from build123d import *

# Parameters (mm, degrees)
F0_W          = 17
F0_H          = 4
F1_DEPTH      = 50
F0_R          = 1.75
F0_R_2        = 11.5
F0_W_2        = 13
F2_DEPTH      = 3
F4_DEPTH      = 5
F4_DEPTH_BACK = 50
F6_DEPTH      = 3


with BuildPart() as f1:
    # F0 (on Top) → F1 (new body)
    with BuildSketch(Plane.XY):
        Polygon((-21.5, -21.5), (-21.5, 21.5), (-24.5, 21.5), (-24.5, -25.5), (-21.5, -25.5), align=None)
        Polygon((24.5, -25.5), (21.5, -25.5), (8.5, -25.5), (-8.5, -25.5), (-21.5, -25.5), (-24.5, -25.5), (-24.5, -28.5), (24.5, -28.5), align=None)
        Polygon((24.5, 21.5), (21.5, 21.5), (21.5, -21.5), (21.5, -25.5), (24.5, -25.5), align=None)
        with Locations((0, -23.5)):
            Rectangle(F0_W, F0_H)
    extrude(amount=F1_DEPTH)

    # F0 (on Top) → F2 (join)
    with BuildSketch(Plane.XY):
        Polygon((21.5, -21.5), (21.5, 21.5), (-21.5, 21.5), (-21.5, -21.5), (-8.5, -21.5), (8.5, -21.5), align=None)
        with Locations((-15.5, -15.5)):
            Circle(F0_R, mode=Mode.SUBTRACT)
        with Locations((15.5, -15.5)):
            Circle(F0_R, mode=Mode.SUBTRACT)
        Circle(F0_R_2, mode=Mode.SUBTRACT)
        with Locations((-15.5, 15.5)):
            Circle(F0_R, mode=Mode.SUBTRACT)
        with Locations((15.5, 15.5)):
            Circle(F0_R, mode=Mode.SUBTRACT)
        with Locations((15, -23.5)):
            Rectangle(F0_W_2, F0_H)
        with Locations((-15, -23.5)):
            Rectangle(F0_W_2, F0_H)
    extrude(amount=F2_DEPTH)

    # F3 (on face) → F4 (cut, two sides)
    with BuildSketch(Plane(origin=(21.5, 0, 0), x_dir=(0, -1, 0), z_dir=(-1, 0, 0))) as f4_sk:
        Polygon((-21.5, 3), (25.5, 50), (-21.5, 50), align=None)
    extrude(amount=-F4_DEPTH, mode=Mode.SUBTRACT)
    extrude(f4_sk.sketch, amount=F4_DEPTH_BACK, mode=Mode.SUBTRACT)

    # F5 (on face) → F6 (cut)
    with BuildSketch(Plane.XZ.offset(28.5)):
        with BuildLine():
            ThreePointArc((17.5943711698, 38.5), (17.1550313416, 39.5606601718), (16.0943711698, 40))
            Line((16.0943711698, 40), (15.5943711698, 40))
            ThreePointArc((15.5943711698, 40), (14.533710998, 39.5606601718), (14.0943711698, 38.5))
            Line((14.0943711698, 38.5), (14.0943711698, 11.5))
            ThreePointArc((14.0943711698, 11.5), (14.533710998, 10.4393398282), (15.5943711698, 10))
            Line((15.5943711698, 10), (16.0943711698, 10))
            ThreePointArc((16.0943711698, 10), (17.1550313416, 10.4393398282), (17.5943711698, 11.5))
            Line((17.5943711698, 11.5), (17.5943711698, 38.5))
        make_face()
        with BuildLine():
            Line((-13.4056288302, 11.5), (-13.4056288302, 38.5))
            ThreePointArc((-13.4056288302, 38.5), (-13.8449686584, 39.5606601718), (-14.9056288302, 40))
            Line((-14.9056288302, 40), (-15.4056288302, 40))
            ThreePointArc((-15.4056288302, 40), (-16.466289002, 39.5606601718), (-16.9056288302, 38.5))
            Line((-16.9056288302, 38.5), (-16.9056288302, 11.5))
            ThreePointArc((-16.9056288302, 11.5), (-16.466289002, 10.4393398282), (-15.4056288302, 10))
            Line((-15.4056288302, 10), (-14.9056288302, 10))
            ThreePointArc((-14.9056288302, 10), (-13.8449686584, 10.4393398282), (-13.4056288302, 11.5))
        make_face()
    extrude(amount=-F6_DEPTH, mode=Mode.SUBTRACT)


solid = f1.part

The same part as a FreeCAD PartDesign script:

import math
import FreeCAD as App
import Part
import Sketcher

doc = App.newDocument("Part")
body = doc.addObject("PartDesign::Body", "Body")

sketch1 = body.newObject("Sketcher::SketchObject", "Sketch")
sketch1.AttachmentSupport = (doc.getObject("XY_Plane"), [""])
sketch1.MapMode = "FlatFace"
sketch1.addGeometry(Part.LineSegment(App.Vector(-21.5, 21.5, 0), App.Vector(-24.5, 21.5, 0)), False)
sketch1.addGeometry(Part.LineSegment(App.Vector(-24.5, 21.5, 0), App.Vector(-24.5, -28.5, 0)), False)
sketch1.addGeometry(Part.LineSegment(App.Vector(-24.5, -28.5, 0), App.Vector(24.5, -28.5, 0)), False)
sketch1.addGeometry(Part.LineSegment(App.Vector(24.5, -28.5, 0), App.Vector(24.5, 21.5, 0)), False)
sketch1.addGeometry(Part.LineSegment(App.Vector(24.5, 21.5, 0), App.Vector(21.5, 21.5, 0)), False)
sketch1.addGeometry(Part.LineSegment(App.Vector(21.5, 21.5, 0), App.Vector(21.5, -25.5, 0)), False)
sketch1.addGeometry(Part.LineSegment(App.Vector(21.5, -25.5, 0), App.Vector(8.5, -25.5, 0)), False)
sketch1.addGeometry(Part.LineSegment(App.Vector(8.5, -25.5, 0), App.Vector(8.5, -21.5, 0)), False)
sketch1.addGeometry(Part.LineSegment(App.Vector(8.5, -21.5, 0), App.Vector(-8.5, -21.5, 0)), False)
sketch1.addGeometry(Part.LineSegment(App.Vector(-8.5, -21.5, 0), App.Vector(-8.5, -25.5, 0)), False)
sketch1.addGeometry(Part.LineSegment(App.Vector(-8.5, -25.5, 0), App.Vector(-21.5, -25.5, 0)), False)
sketch1.addGeometry(Part.LineSegment(App.Vector(-21.5, -25.5, 0), App.Vector(-21.5, 21.5, 0)), False)
sketch1.addConstraint(Sketcher.Constraint("Coincident", 0, 2, 1, 1))
sketch1.addConstraint(Sketcher.Constraint("Coincident", 1, 2, 2, 1))
sketch1.addConstraint(Sketcher.Constraint("Coincident", 2, 2, 3, 1))
sketch1.addConstraint(Sketcher.Constraint("Coincident", 3, 2, 4, 1))
sketch1.addConstraint(Sketcher.Constraint("Coincident", 4, 2, 5, 1))
sketch1.addConstraint(Sketcher.Constraint("Coincident", 5, 2, 6, 1))
sketch1.addConstraint(Sketcher.Constraint("Coincident", 6, 2, 7, 1))
sketch1.addConstraint(Sketcher.Constraint("Coincident", 7, 2, 8, 1))
sketch1.addConstraint(Sketcher.Constraint("Coincident", 8, 2, 9, 1))
sketch1.addConstraint(Sketcher.Constraint("Coincident", 9, 2, 10, 1))
sketch1.addConstraint(Sketcher.Constraint("Coincident", 10, 2, 11, 1))
sketch1.addConstraint(Sketcher.Constraint("Coincident", 11, 2, 0, 1))
sketch1.addConstraint(Sketcher.Constraint("Horizontal", 0))
sketch1.addConstraint(Sketcher.Constraint("Vertical", 1))
sketch1.addConstraint(Sketcher.Constraint("Horizontal", 2))
sketch1.addConstraint(Sketcher.Constraint("Vertical", 3))
sketch1.addConstraint(Sketcher.Constraint("Horizontal", 4))
sketch1.addConstraint(Sketcher.Constraint("Vertical", 5))
sketch1.addConstraint(Sketcher.Constraint("Horizontal", 6))
sketch1.addConstraint(Sketcher.Constraint("Vertical", 7))
sketch1.addConstraint(Sketcher.Constraint("Horizontal", 8))
sketch1.addConstraint(Sketcher.Constraint("Vertical", 9))
sketch1.addConstraint(Sketcher.Constraint("Horizontal", 10))
sketch1.addConstraint(Sketcher.Constraint("Vertical", 11))
sketch1.addConstraint(Sketcher.Constraint("Symmetric", 0, 2, 3, 2, -2))
sketch1.addConstraint(Sketcher.Constraint("Symmetric", 6, 2, 9, 2, -2))
sketch1.addConstraint(Sketcher.Constraint("Equal", 0, 4))
sketch1.addConstraint(Sketcher.Constraint("DistanceX", 0, 2, 0, 1, 3.0))
sketch1.addConstraint(Sketcher.Constraint("DistanceX", 2, 1, 2, 2, 49.0))
sketch1.addConstraint(Sketcher.Constraint("DistanceX", 6, 2, 6, 1, 13.0))
sketch1.addConstraint(Sketcher.Constraint("DistanceY", 1, 2, 1, 1, 50.0))
sketch1.addConstraint(Sketcher.Constraint("DistanceY", 5, 2, 5, 1, 47.0))
sketch1.addConstraint(Sketcher.Constraint("DistanceY", 7, 1, 7, 2, 4.0))
sketch1.addConstraint(Sketcher.Constraint("DistanceY", -1, 1, 0, 2, 21.5))
pad1 = body.newObject("PartDesign::Pad", "Pad")
pad1.Profile = sketch1
pad1.Length = 50

sketch2 = body.newObject("Sketcher::SketchObject", "Sketch001")
sketch2.AttachmentSupport = (doc.getObject("XY_Plane"), [""])
sketch2.MapMode = "FlatFace"
sketch2.addGeometry(Part.LineSegment(App.Vector(21.5, 21.5, 0), App.Vector(-21.5, 21.5, 0)), False)
sketch2.addGeometry(Part.LineSegment(App.Vector(-21.5, 21.5, 0), App.Vector(-21.5, -25.5, 0)), False)
sketch2.addGeometry(Part.LineSegment(App.Vector(-21.5, -25.5, 0), App.Vector(-8.5, -25.5, 0)), False)
sketch2.addGeometry(Part.LineSegment(App.Vector(-8.5, -25.5, 0), App.Vector(-8.5, -21.5, 0)), False)
sketch2.addGeometry(Part.LineSegment(App.Vector(-8.5, -21.5, 0), App.Vector(8.5, -21.5, 0)), False)
sketch2.addGeometry(Part.LineSegment(App.Vector(8.5, -21.5, 0), App.Vector(8.5, -25.5, 0)), False)
sketch2.addGeometry(Part.LineSegment(App.Vector(8.5, -25.5, 0), App.Vector(21.5, -25.5, 0)), False)
sketch2.addGeometry(Part.LineSegment(App.Vector(21.5, -25.5, 0), App.Vector(21.5, 21.5, 0)), False)
sketch2.addGeometry(Part.Circle(App.Vector(-15.5, -15.5, 0), App.Vector(0, 0, 1), 1.75), False)
sketch2.addGeometry(Part.Circle(App.Vector(15.5, -15.5, 0), App.Vector(0, 0, 1), 1.75), False)
sketch2.addGeometry(Part.Circle(App.Vector(-15.5, 15.5, 0), App.Vector(0, 0, 1), 1.75), False)
sketch2.addGeometry(Part.Circle(App.Vector(0, 0, 0), App.Vector(0, 0, 1), 11.5), False)
sketch2.addGeometry(Part.Circle(App.Vector(15.5, 15.5, 0), App.Vector(0, 0, 1), 1.75), False)
sketch2.addConstraint(Sketcher.Constraint("Coincident", 0, 2, 1, 1))
sketch2.addConstraint(Sketcher.Constraint("Coincident", 1, 2, 2, 1))
sketch2.addConstraint(Sketcher.Constraint("Coincident", 2, 2, 3, 1))
sketch2.addConstraint(Sketcher.Constraint("Coincident", 3, 2, 4, 1))
sketch2.addConstraint(Sketcher.Constraint("Coincident", 4, 2, 5, 1))
sketch2.addConstraint(Sketcher.Constraint("Coincident", 5, 2, 6, 1))
sketch2.addConstraint(Sketcher.Constraint("Coincident", 6, 2, 7, 1))
sketch2.addConstraint(Sketcher.Constraint("Coincident", 7, 2, 0, 1))
sketch2.addConstraint(Sketcher.Constraint("Horizontal", 0))
sketch2.addConstraint(Sketcher.Constraint("Vertical", 1))
sketch2.addConstraint(Sketcher.Constraint("Horizontal", 2))
sketch2.addConstraint(Sketcher.Constraint("Vertical", 3))
sketch2.addConstraint(Sketcher.Constraint("Horizontal", 4))
sketch2.addConstraint(Sketcher.Constraint("Vertical", 5))
sketch2.addConstraint(Sketcher.Constraint("Horizontal", 6))
sketch2.addConstraint(Sketcher.Constraint("Vertical", 7))
sketch2.addConstraint(Sketcher.Constraint("Coincident", 11, 3, -1, 1))
sketch2.addConstraint(Sketcher.Constraint("Equal", 8, 9))
sketch2.addConstraint(Sketcher.Constraint("Equal", 9, 10))
sketch2.addConstraint(Sketcher.Constraint("Equal", 10, 12))
sketch2.addConstraint(Sketcher.Constraint("Symmetric", 9, 3, 10, 3, -1, 1))
sketch2.addConstraint(Sketcher.Constraint("Symmetric", 8, 3, 12, 3, -1, 1))
sketch2.addConstraint(Sketcher.Constraint("Symmetric", 8, 3, 9, 3, -2))
sketch2.addConstraint(Sketcher.Constraint("Symmetric", 2, 2, 5, 2, -2))
sketch2.addConstraint(Sketcher.Constraint("Equal", 2, 6))
sketch2.addConstraint(Sketcher.Constraint("Diameter", 11, 23.0))
sketch2.addConstraint(Sketcher.Constraint("Diameter", 8, 3.5))
sketch2.addConstraint(Sketcher.Constraint("DistanceX", 0, 2, 0, 1, 43.0))
sketch2.addConstraint(Sketcher.Constraint("DistanceX", 2, 1, 2, 2, 13.0))
sketch2.addConstraint(Sketcher.Constraint("DistanceY", 1, 2, 1, 1, 47.0))
sketch2.addConstraint(Sketcher.Constraint("DistanceY", 3, 1, 3, 2, 4.0))
sketch2.addConstraint(Sketcher.Constraint("DistanceX", 8, 3, 9, 3, 31.0))
sketch2.addConstraint(Sketcher.Constraint("DistanceY", 8, 3, 10, 3, 31.0))
sketch2.addConstraint(Sketcher.Constraint("DistanceY", 10, 3, 0, 2, 6.0))
pad2 = body.newObject("PartDesign::Pad", "Pad001")
pad2.Profile = sketch2
pad2.Length = 3

sketch3 = body.newObject("Sketcher::SketchObject", "Sketch002")
sketch3.AttachmentSupport = (doc.getObject("YZ_Plane"), [""])
sketch3.MapMode = "FlatFace"
sketch3.AttachmentOffset = App.Placement(App.Vector(0, 0, 21.5), App.Rotation())
sketch3.addGeometry(Part.LineSegment(App.Vector(21.5, 3, 0), App.Vector(-25.5, 50, 0)), False)
sketch3.addGeometry(Part.LineSegment(App.Vector(-25.5, 50, 0), App.Vector(21.5, 50, 0)), False)
sketch3.addGeometry(Part.LineSegment(App.Vector(21.5, 50, 0), App.Vector(21.5, 3, 0)), False)
sketch3.addConstraint(Sketcher.Constraint("Coincident", 0, 2, 1, 1))
sketch3.addConstraint(Sketcher.Constraint("Coincident", 1, 2, 2, 1))
sketch3.addConstraint(Sketcher.Constraint("Coincident", 2, 2, 0, 1))
sketch3.addConstraint(Sketcher.Constraint("Horizontal", 1))
sketch3.addConstraint(Sketcher.Constraint("Vertical", 2))
sketch3.addConstraint(Sketcher.Constraint("Equal", 1, 2))
sketch3.addConstraint(Sketcher.Constraint("DistanceX", 1, 1, 1, 2, 47.0))
sketch3.addConstraint(Sketcher.Constraint("DistanceY", -1, 1, 0, 2, 50.0))
sketch3.addConstraint(Sketcher.Constraint("DistanceX", 0, 2, -1, 1, 25.5))
pocket1 = body.newObject("PartDesign::Pocket", "Pocket")
pocket1.Profile = sketch3
pocket1.Type = "ThroughAll"
pocket1.Midplane = True

sketch4 = body.newObject("Sketcher::SketchObject", "Sketch003")
sketch4.AttachmentSupport = (doc.getObject("XZ_Plane"), [""])
sketch4.MapMode = "FlatFace"
sketch4.AttachmentOffset = App.Placement(App.Vector(0, 0, 28.5), App.Rotation())
sketch4.addGeometry(Part.ArcOfCircle(Part.Circle(App.Vector(16.094371, 38.5, 0), App.Vector(0, 0, 1), 1.5), math.radians(0), math.radians(90)), False)
sketch4.addGeometry(Part.LineSegment(App.Vector(16.094371, 40, 0), App.Vector(15.594371, 40, 0)), False)
sketch4.addGeometry(Part.ArcOfCircle(Part.Circle(App.Vector(15.594371, 38.5, 0), App.Vector(0, 0, 1), 1.5), math.radians(90), math.radians(180)), False)
sketch4.addGeometry(Part.LineSegment(App.Vector(14.094371, 38.5, 0), App.Vector(14.094371, 11.5, 0)), False)
sketch4.addGeometry(Part.ArcOfCircle(Part.Circle(App.Vector(15.594371, 11.5, 0), App.Vector(0, 0, 1), 1.5), math.radians(180), math.radians(270)), False)
sketch4.addGeometry(Part.LineSegment(App.Vector(15.594371, 10, 0), App.Vector(16.094371, 10, 0)), False)
sketch4.addGeometry(Part.ArcOfCircle(Part.Circle(App.Vector(16.094371, 11.5, 0), App.Vector(0, 0, 1), 1.5), math.radians(-90), math.radians(0)), False)
sketch4.addGeometry(Part.LineSegment(App.Vector(17.594371, 11.5, 0), App.Vector(17.594371, 38.5, 0)), False)
sketch4.addGeometry(Part.LineSegment(App.Vector(-13.405629, 11.5, 0), App.Vector(-13.405629, 38.5, 0)), False)
sketch4.addGeometry(Part.ArcOfCircle(Part.Circle(App.Vector(-14.905629, 38.5, 0), App.Vector(0, 0, 1), 1.5), math.radians(0), math.radians(90)), False)
sketch4.addGeometry(Part.LineSegment(App.Vector(-14.905629, 40, 0), App.Vector(-15.405629, 40, 0)), False)
sketch4.addGeometry(Part.ArcOfCircle(Part.Circle(App.Vector(-15.405629, 38.5, 0), App.Vector(0, 0, 1), 1.5), math.radians(90), math.radians(180)), False)
sketch4.addGeometry(Part.LineSegment(App.Vector(-16.905629, 38.5, 0), App.Vector(-16.905629, 11.5, 0)), False)
sketch4.addGeometry(Part.ArcOfCircle(Part.Circle(App.Vector(-15.405629, 11.5, 0), App.Vector(0, 0, 1), 1.5), math.radians(180), math.radians(270)), False)
sketch4.addGeometry(Part.LineSegment(App.Vector(-15.405629, 10, 0), App.Vector(-14.905629, 10, 0)), False)
sketch4.addGeometry(Part.ArcOfCircle(Part.Circle(App.Vector(-14.905629, 11.5, 0), App.Vector(0, 0, 1), 1.5), math.radians(-90), math.radians(0)), False)
sketch4.addConstraint(Sketcher.Constraint("Tangent", 0, 2, 1, 1))
sketch4.addConstraint(Sketcher.Constraint("Tangent", 1, 2, 2, 1))
sketch4.addConstraint(Sketcher.Constraint("Tangent", 2, 2, 3, 1))
sketch4.addConstraint(Sketcher.Constraint("Tangent", 3, 2, 4, 1))
sketch4.addConstraint(Sketcher.Constraint("Tangent", 4, 2, 5, 1))
sketch4.addConstraint(Sketcher.Constraint("Tangent", 5, 2, 6, 1))
sketch4.addConstraint(Sketcher.Constraint("Tangent", 6, 2, 7, 1))
sketch4.addConstraint(Sketcher.Constraint("Tangent", 7, 2, 0, 1))
sketch4.addConstraint(Sketcher.Constraint("Tangent", 8, 2, 9, 1))
sketch4.addConstraint(Sketcher.Constraint("Tangent", 9, 2, 10, 1))
sketch4.addConstraint(Sketcher.Constraint("Tangent", 10, 2, 11, 1))
sketch4.addConstraint(Sketcher.Constraint("Tangent", 11, 2, 12, 1))
sketch4.addConstraint(Sketcher.Constraint("Tangent", 12, 2, 13, 1))
sketch4.addConstraint(Sketcher.Constraint("Tangent", 13, 2, 14, 1))
sketch4.addConstraint(Sketcher.Constraint("Tangent", 14, 2, 15, 1))
sketch4.addConstraint(Sketcher.Constraint("Tangent", 15, 2, 8, 1))
sketch4.addConstraint(Sketcher.Constraint("Horizontal", 1))
sketch4.addConstraint(Sketcher.Constraint("Vertical", 3))
sketch4.addConstraint(Sketcher.Constraint("Horizontal", 5))
sketch4.addConstraint(Sketcher.Constraint("Vertical", 7))
sketch4.addConstraint(Sketcher.Constraint("Vertical", 8))
sketch4.addConstraint(Sketcher.Constraint("Horizontal", 10))
sketch4.addConstraint(Sketcher.Constraint("Vertical", 12))
sketch4.addConstraint(Sketcher.Constraint("Horizontal", 14))
sketch4.addConstraint(Sketcher.Constraint("Equal", 0, 2))
sketch4.addConstraint(Sketcher.Constraint("Equal", 2, 4))
sketch4.addConstraint(Sketcher.Constraint("Equal", 4, 6))
sketch4.addConstraint(Sketcher.Constraint("Equal", 6, 9))
sketch4.addConstraint(Sketcher.Constraint("Equal", 9, 11))
sketch4.addConstraint(Sketcher.Constraint("Equal", 11, 13))
sketch4.addConstraint(Sketcher.Constraint("Equal", 13, 15))
sketch4.addConstraint(Sketcher.Constraint("Horizontal", 2, 3, 9, 3))
sketch4.addConstraint(Sketcher.Constraint("Horizontal", 6, 3, 13, 3))
sketch4.addConstraint(Sketcher.Constraint("Equal", 5, 10))
sketch4.addConstraint(Sketcher.Constraint("Radius", 0, 1.5))
sketch4.addConstraint(Sketcher.Constraint("DistanceY", 3, 2, 3, 1, 27.0))
sketch4.addConstraint(Sketcher.Constraint("DistanceX", 1, 2, 1, 1, 0.5))
sketch4.addConstraint(Sketcher.Constraint("DistanceY", -1, 1, 0, 2, 40.0))
sketch4.addConstraint(Sketcher.Constraint("DistanceX", 9, 3, 0, 3, 31.0))
sketch4.addConstraint(Sketcher.Constraint("DistanceX", -1, 1, 0, 3, 16.094371))
pocket2 = body.newObject("PartDesign::Pocket", "Pocket001")
pocket2.Profile = sketch4
pocket2.Length = 3

doc.recompute()
